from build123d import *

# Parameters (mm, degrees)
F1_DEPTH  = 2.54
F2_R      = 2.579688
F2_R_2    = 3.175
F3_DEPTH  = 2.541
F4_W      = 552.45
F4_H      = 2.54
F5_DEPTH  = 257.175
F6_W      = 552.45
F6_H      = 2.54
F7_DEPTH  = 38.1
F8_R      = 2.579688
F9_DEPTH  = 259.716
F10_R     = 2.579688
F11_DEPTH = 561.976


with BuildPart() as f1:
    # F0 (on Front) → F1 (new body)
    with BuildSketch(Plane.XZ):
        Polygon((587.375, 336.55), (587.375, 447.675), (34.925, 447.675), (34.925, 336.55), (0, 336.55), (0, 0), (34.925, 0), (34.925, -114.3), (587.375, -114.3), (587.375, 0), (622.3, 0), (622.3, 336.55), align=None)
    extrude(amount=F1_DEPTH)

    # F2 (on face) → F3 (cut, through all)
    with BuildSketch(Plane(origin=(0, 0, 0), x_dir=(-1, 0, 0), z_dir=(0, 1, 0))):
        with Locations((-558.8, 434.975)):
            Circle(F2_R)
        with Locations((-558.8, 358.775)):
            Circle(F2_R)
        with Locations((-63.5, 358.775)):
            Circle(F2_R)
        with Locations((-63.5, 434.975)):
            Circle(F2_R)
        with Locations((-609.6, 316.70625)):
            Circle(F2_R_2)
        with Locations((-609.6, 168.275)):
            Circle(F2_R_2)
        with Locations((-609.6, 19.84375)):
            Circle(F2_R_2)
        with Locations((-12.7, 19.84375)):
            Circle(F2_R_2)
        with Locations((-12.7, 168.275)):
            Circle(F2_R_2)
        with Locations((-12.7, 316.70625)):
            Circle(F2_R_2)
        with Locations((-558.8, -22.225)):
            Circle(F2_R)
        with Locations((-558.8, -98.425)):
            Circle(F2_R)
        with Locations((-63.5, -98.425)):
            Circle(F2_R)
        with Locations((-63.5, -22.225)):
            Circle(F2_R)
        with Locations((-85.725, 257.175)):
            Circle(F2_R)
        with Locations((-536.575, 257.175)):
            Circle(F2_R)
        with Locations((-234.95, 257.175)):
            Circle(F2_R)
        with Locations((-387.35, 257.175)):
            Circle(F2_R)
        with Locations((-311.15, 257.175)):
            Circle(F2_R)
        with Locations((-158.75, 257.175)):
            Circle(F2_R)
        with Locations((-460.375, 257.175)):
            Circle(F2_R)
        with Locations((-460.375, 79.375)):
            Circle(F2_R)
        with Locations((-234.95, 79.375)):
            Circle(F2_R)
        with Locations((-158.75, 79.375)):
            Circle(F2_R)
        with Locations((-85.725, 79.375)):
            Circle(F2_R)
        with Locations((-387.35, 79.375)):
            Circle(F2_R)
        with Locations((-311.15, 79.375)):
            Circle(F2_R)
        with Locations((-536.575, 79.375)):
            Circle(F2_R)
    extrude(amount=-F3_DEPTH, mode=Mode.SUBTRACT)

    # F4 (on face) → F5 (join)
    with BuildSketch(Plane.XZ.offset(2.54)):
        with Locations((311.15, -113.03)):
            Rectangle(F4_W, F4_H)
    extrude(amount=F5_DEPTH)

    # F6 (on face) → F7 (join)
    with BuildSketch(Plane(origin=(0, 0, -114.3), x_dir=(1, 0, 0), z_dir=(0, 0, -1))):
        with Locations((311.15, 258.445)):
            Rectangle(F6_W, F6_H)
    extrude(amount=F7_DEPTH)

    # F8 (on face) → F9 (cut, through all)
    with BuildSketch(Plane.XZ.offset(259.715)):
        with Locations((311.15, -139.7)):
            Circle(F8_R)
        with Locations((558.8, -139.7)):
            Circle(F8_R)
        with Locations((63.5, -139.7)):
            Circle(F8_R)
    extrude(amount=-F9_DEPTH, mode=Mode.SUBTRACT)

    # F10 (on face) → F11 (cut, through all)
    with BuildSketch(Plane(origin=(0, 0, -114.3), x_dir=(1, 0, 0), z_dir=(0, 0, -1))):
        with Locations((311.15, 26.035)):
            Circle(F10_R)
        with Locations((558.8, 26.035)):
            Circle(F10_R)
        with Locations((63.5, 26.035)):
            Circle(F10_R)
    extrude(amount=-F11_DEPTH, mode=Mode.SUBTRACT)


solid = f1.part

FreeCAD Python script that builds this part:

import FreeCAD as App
import Part
import Sketcher
from FreeCAD import Vector
Q = App.Units.Quantity


def add_polygon(sketch, points):
    """Adds a closed chain of lines whose ends are joined by coincident constraints."""
    first, n = sketch.GeometryCount, len(points)
    for a, b in zip(points, points[1:] + points[:1]):
        sketch.addGeometry(Part.LineSegment(App.Vector(*a, 0), App.Vector(*b, 0)), False)
    for i in range(n):
        sketch.addConstraint(Sketcher.Constraint("Coincident", first + i, 2, first + (i + 1) % n, 1))

doc = App.newDocument("Part")
body = doc.addObject("PartDesign::Body", "Body")

# Sketch on XZ plane
sketch1 = doc.addObject("Sketcher::SketchObject", "Sketch")
body.addObject(sketch1)
sketch1.AttachmentSupport = (doc.XZ_Plane, [""])
sketch1.MapMode = "FlatFace"
add_polygon(sketch1, [(587, 337), (587, 448), (35, 448), (35, 337), (0, 337), (0, 0), (35, 0), (35, -114), (587, -114), (587, 0), (622, 0), (622, 337)])  # lines 0-11
sketch1.addConstraint([
    Sketcher.Constraint("Vertical", 0),
    Sketcher.Constraint("Horizontal", 1),
    Sketcher.Constraint("Vertical", 2),
    Sketcher.Constraint("Horizontal", 3),
    Sketcher.Constraint("Vertical", 4),
    Sketcher.Constraint("Horizontal", 5),
    Sketcher.Constraint("Vertical", 6),
    Sketcher.Constraint("Horizontal", 7),
    Sketcher.Constraint("Vertical", 8),
    Sketcher.Constraint("Horizontal", 9),
    Sketcher.Constraint("Vertical", 10),
    Sketcher.Constraint("Horizontal", 11),
    Sketcher.Constraint("Coincident", 4, 2, -1, 1),
    Sketcher.Constraint("PointOnObject", 8, 2, -1),
    Sketcher.Constraint("Horizontal", 3, 2, 10, 2),
    Sketcher.Constraint("Vertical", 2, 2, 5, 2),
    Sketcher.Constraint("Vertical", 0, 2, 7, 2),
    Sketcher.Constraint("Equal", 5, 9),
    Sketcher.Constraint("DistanceY", 6, 2, 6, 1, Q("4.5 in")),
    Sketcher.Constraint("DistanceX", 1, 2, 1, 1, Q("21.75 in")),
    Sketcher.Constraint("DistanceY", 4, 2, 4, 1, Q("13.25 in")),
    Sketcher.Constraint("DistanceX", -1, 1, 9, 2, Q("24.5 in")),
    Sketcher.Constraint("DistanceY", 0, 1, 0, 2, Q("4.375 in")),
])
pad1 = doc.addObject("PartDesign::Pad", "Pad")
body.addObject(pad1)
pad1.Profile = sketch1
pad1.Length = Q("0.1 in")

# Sketch on XZ plane
sketch2 = doc.addObject("Sketcher::SketchObject", "Sketch001")
body.addObject(sketch2)
sketch2.AttachmentSupport = (doc.XZ_Plane, [""])
sketch2.MapMode = "FlatFace"
sketch2.addGeometry([
    Part.Circle(Vector(558.8, 435, 0), Vector(0, 0, 1), 2.6),  # 0
    Part.Circle(Vector(558.8, 358.8, 0), Vector(0, 0, 1), 2.6),  # 1
    Part.Circle(Vector(63.5, 358.8, 0), Vector(0, 0, 1), 2.6),  # 2
    Part.Circle(Vector(63.5, 435, 0), Vector(0, 0, 1), 2.6),  # 3
    Part.Circle(Vector(609.6, 316.7, 0), Vector(0, 0, 1), 3.2),  # 4
    Part.Circle(Vector(609.6, 168.3, 0), Vector(0, 0, 1), 3.2),  # 5
    Part.Circle(Vector(609.6, 19.8, 0), Vector(0, 0, 1), 3.2),  # 6
    Part.Circle(Vector(12.7, 19.8, 0), Vector(0, 0, 1), 3.2),  # 7
    Part.Circle(Vector(12.7, 168.3, 0), Vector(0, 0, 1), 3.2),  # 8
    Part.Circle(Vector(12.7, 316.7, 0), Vector(0, 0, 1), 3.2),  # 9
    Part.Circle(Vector(558.8, -22.2, 0), Vector(0, 0, 1), 2.6),  # 10
    Part.Circle(Vector(558.8, -98.4, 0), Vector(0, 0, 1), 2.6),  # 11
    Part.Circle(Vector(63.5, -98.4, 0), Vector(0, 0, 1), 2.6),  # 12
    Part.Circle(Vector(63.5, -22.2, 0), Vector(0, 0, 1), 2.6),  # 13
    Part.Circle(Vector(85.7, 257.2, 0), Vector(0, 0, 1), 2.6),  # 14
    Part.Circle(Vector(536.6, 257.2, 0), Vector(0, 0, 1), 2.6),  # 15
    Part.Circle(Vector(234.9, 257.2, 0), Vector(0, 0, 1), 2.6),  # 16
    Part.Circle(Vector(387.4, 257.2, 0), Vector(0, 0, 1), 2.6),  # 17
    Part.Circle(Vector(311.1, 257.2, 0), Vector(0, 0, 1), 2.6),  # 18
    Part.Circle(Vector(158.8, 257.2, 0), Vector(0, 0, 1), 2.6),  # 19
    Part.Circle(Vector(460.4, 257.2, 0), Vector(0, 0, 1), 2.6),  # 20
    Part.Circle(Vector(460.4, 79.4, 0), Vector(0, 0, 1), 2.6),  # 21
    Part.Circle(Vector(234.9, 79.4, 0), Vector(0, 0, 1), 2.6),  # 22
    Part.Circle(Vector(158.8, 79.4, 0), Vector(0, 0, 1), 2.6),  # 23
    Part.Circle(Vector(85.7, 79.4, 0), Vector(0, 0, 1), 2.6),  # 24
    Part.Circle(Vector(387.4, 79.4, 0), Vector(0, 0, 1), 2.6),  # 25
    Part.Circle(Vector(311.1, 79.4, 0), Vector(0, 0, 1), 2.6),  # 26
    Part.Circle(Vector(536.6, 79.4, 0), Vector(0, 0, 1), 2.6),  # 27
], False)
sketch2.addConstraint([
    Sketcher.Constraint("Equal", 0, 1),
    Sketcher.Constraint("Equal", 1, 2),
    Sketcher.Constraint("Equal", 2, 3),
    Sketcher.Constraint("Equal", 4, 5),
    Sketcher.Constraint("Equal", 5, 6),
    Sketcher.Constraint("Equal", 6, 7),
    Sketcher.Constraint("Equal", 7, 8),
    Sketcher.Constraint("Equal", 8, 9),
    Sketcher.Constraint("Equal", 3, 10),
    Sketcher.Constraint("Equal", 10, 11),
    Sketcher.Constraint("Equal", 11, 12),
    Sketcher.Constraint("Equal", 12, 13),
    Sketcher.Constraint("Equal", 13, 14),
    Sketcher.Constraint("Equal", 14, 15),
    Sketcher.Constraint("Equal", 15, 16),
    Sketcher.Constraint("Equal", 16, 17),
    Sketcher.Constraint("Equal", 17, 18),
    Sketcher.Constraint("Equal", 18, 19),
    Sketcher.Constraint("Equal", 19, 20),
    Sketcher.Constraint("Equal", 20, 21),
    Sketcher.Constraint("Equal", 21, 22),
    Sketcher.Constraint("Equal", 22, 23),
    Sketcher.Constraint("Equal", 23, 24),
    Sketcher.Constraint("Equal", 24, 25),
    Sketcher.Constraint("Equal", 25, 26),
    Sketcher.Constraint("Equal", 26, 27),
    Sketcher.Constraint("Horizontal", 1, 3, 2, 3),
    Sketcher.Constraint("Horizontal", 0, 3, 3, 3),
    Sketcher.Constraint("Horizontal", 6, 3, 7, 3),
    Sketcher.Constraint("Horizontal", 5, 3, 8, 3),
    Sketcher.Constraint("Horizontal", 4, 3, 9, 3),
    Sketcher.Constraint("Horizontal", 11, 3, 12, 3),
    Sketcher.Constraint("Horizontal", 10, 3, 13, 3),
    Sketcher.Constraint("Horizontal", 14, 3, 15, 3),
    Sketcher.Constraint("Horizontal", 15, 3, 16, 3),
    Sketcher.Constraint("Horizontal", 16, 3, 17, 3),
    Sketcher.Constraint("Horizontal", 17, 3, 18, 3),
    Sketcher.Constraint("Horizontal", 18, 3, 19, 3),
    Sketcher.Constraint("Horizontal", 19, 3, 20, 3),
    Sketcher.Constraint("Horizontal", 21, 3, 22, 3),
    Sketcher.Constraint("Horizontal", 22, 3, 23, 3),
    Sketcher.Constraint("Horizontal", 23, 3, 24, 3),
    Sketcher.Constraint("Horizontal", 24, 3, 25, 3),
    Sketcher.Constraint("Horizontal", 25, 3, 26, 3),
    Sketcher.Constraint("Horizontal", 26, 3, 27, 3),
    Sketcher.Constraint("Vertical", 0, 3, 1, 3),
    Sketcher.Constraint("Vertical", 2, 3, 3, 3),
    Sketcher.Constraint("Vertical", 4, 3, 5, 3),
    Sketcher.Constraint("Vertical", 5, 3, 6, 3),
    Sketcher.Constraint("Vertical", 7, 3, 8, 3),
    Sketcher.Constraint("Vertical", 8, 3, 9, 3),
    Sketcher.Constraint("Vertical", 1, 3, 10, 3),
    Sketcher.Constraint("Vertical", 10, 3, 11, 3),
    Sketcher.Constraint("Vertical", 3, 3, 12, 3),
    Sketcher.Constraint("Vertical", 12, 3, 13, 3),
    Sketcher.Constraint("Vertical", 20, 3, 21, 3),
    Sketcher.Constraint("Vertical", 16, 3, 22, 3),
    Sketcher.Constraint("Vertical", 19, 3, 23, 3),
    Sketcher.Constraint("Vertical", 14, 3, 24, 3),
    Sketcher.Constraint("Vertical", 17, 3, 25, 3),
    Sketcher.Constraint("Vertical", 18, 3, 26, 3),
    Sketcher.Constraint("Vertical", 15, 3, 27, 3),
    Sketcher.Constraint("Diameter", 4, Q("0.25 in")),
    Sketcher.Constraint("Diameter", 0, Q("0.203125 in")),
    Sketcher.Constraint("DistanceX", -1, 1, 0, 3, Q("22 in")),
    Sketcher.Constraint("DistanceX", -1, 1, 4, 3, Q("24 in")),
    Sketcher.Constraint("DistanceY", 1, 3, 0, 3, Q("3 in")),
    Sketcher.Constraint("DistanceX", 7, 3, 2, 3, Q("2 in")),
    Sketcher.Constraint("DistanceY", 10, 3, 1, 3, Q("15 in")),
    Sketcher.Constraint("DistanceY", 11, 3, 10, 3, Q("3 in")),
    Sketcher.Constraint("DistanceY", 14, 3, 2, 3, Q("4 in")),
    Sketcher.Constraint("DistanceX", 16, 3, 17, 3, Q("6 in")),
    Sketcher.Constraint("DistanceX", 16, 3, 18, 3, Q("3 in")),
    Sketcher.Constraint("DistanceX", 19, 3, 16, 3, Q("3 in")),
    Sketcher.Constraint("DistanceX", 20, 3, 15, 3, Q("3 in")),
    Sketcher.Constraint("DistanceY", 10, 3, 21, 3, Q("4 in")),
    Sketcher.Constraint("DistanceX", -1, 1, 2, 3, Q("2.5 in")),
    Sketcher.Constraint("DistanceY", 5, 3, 1, 3, Q("7.5 in")),
    Sketcher.Constraint("DistanceX", -1, 1, 16, 3, Q("9.25 in")),
    Sketcher.Constraint("DistanceY", -1, 1, 0, 3, Q("17.125 in")),
    Sketcher.Constraint("DistanceY", -1, 1, 4, 3, Q("12.46875 in")),
    Sketcher.Constraint("DistanceY", -1, 1, 6, 3, Q("0.78125 in")),
    Sketcher.Constraint("DistanceX", -1, 1, 14, 3, Q("3.375 in")),
    Sketcher.Constraint("DistanceX", -1, 1, 15, 3, Q("21.125 in")),
])
pocket1 = doc.addObject("PartDesign::Pocket", "Pocket")
body.addObject(pocket1)
pocket1.Profile = sketch2
pocket1.Type = "ThroughAll"
pocket1.Reversed = True

# Sketch on XZ plane
sketch3 = doc.addObject("Sketcher::SketchObject", "Sketch002")
body.addObject(sketch3)
sketch3.AttachmentSupport = (doc.XZ_Plane, [""])
sketch3.MapMode = "FlatFace"
sketch3.AttachmentOffset = App.Placement(Vector(0, 0, 0.1 * 25.4), App.Rotation())
add_polygon(sketch3, [(34.9, -111.8), (34.9, -114.3), (587.4, -114.3), (587.4, -111.8)])  # lines 0-3
sketch3.addConstraint([
    Sketcher.Constraint("Vertical", 0),
    Sketcher.Constraint("Horizontal", 1),
    Sketcher.Constraint("Vertical", 2),
    Sketcher.Constraint("Horizontal", 3),
    Sketcher.Constraint("DistanceY", 0, 2, 0, 1, Q("0.1 in")),
    Sketcher.Constraint("DistanceX", 1, 1, 1, 2, Q("21.75 in")),
    Sketcher.Constraint("DistanceY", 0, 2, -1, 1, Q("4.5 in")),
    Sketcher.Constraint("DistanceX", -1, 1, 0, 2, Q("1.375 in")),
])
pad2 = doc.addObject("PartDesign::Pad", "Pad001")
body.addObject(pad2)
pad2.Profile = sketch3
pad2.Length = Q("10.125 in")

# Sketch on XY plane
sketch4 = doc.addObject("Sketcher::SketchObject", "Sketch003")
body.addObject(sketch4)
sketch4.AttachmentSupport = (doc.XY_Plane, [""])
sketch4.MapMode = "FlatFace"
sketch4.AttachmentOffset = App.Placement(Vector(0, 0, -4.5 * 25.4), App.Rotation())
add_polygon(sketch4, [(34.9, -259.7), (34.9, -257.2), (587.4, -257.2), (587.4, -259.7)])  # lines 0-3
sketch4.addConstraint([
    Sketcher.Constraint("Vertical", 0),
    Sketcher.Constraint("Horizontal", 1),
    Sketcher.Constraint("Vertical", 2),
    Sketcher.Constraint("Horizontal", 3),
    Sketcher.Constraint("DistanceY", 0, 1, 0, 2, Q("0.1 in")),
    Sketcher.Constraint("DistanceX", 1, 1, 1, 2, Q("21.75 in")),
    Sketcher.Constraint("DistanceX", -1, 1, 0, 2, Q("1.375 in")),
    Sketcher.Constraint("DistanceY", 0, 2, -1, 1, Q("10.125 in")),
])
pad3 = doc.addObject("PartDesign::Pad", "Pad002")
body.addObject(pad3)
pad3.Profile = sketch4
pad3.Length = Q("1.5 in")
pad3.Reversed = True

# Sketch on XZ plane
sketch5 = doc.addObject("Sketcher::SketchObject", "Sketch004")
body.addObject(sketch5)
sketch5.AttachmentSupport = (doc.XZ_Plane, [""])
sketch5.MapMode = "FlatFace"
sketch5.AttachmentOffset = App.Placement(Vector(0, 0, 10.225 * 25.4), App.Rotation())
sketch5.addGeometry([
    Part.Circle(Vector(311.1, -139.7, 0), Vector(0, 0, 1), 2.6),
    Part.Circle(Vector(558.8, -139.7, 0), Vector(0, 0, 1), 2.6),
    Part.Circle(Vector(63.5, -139.7, 0), Vector(0, 0, 1), 2.6),
], False)
sketch5.addConstraint([
    Sketcher.Constraint("Equal", 0, 1),
    Sketcher.Constraint("Equal", 1, 2),
    Sketcher.Constraint("Horizontal", 0, 3, 1, 3),
    Sketcher.Constraint("Horizontal", 1, 3, 2, 3),
    Sketcher.Constraint("Diameter", 0, Q("0.203125 in")),
    Sketcher.Constraint("DistanceX", -1, 1, 1, 3, Q("22 in")),
    Sketcher.Constraint("DistanceY", 0, 3, -1, 1, Q("5.5 in")),
    Sketcher.Constraint("DistanceX", -1, 1, 2, 3, Q("2.5 in")),
    Sketcher.Constraint("DistanceX", -1, 1, 0, 3, Q("12.25 in")),
])
pocket2 = doc.addObject("PartDesign::Pocket", "Pocket001")
body.addObject(pocket2)
pocket2.Profile = sketch5
pocket2.Type = "ThroughAll"

# Sketch on XY plane
sketch6 = doc.addObject("Sketcher::SketchObject", "Sketch005")
body.addObject(sketch6)
sketch6.AttachmentSupport = (doc.XY_Plane, [""])
sketch6.MapMode = "FlatFace"
sketch6.AttachmentOffset = App.Placement(Vector(0, 0, -4.5 * 25.4), App.Rotation())
sketch6.addGeometry([
    Part.Circle(Vector(311.1, -26, 0), Vector(0, 0, 1), 2.6),
    Part.Circle(Vector(558.8, -26, 0), Vector(0, 0, 1), 2.6),
    Part.Circle(Vector(63.5, -26, 0), Vector(0, 0, 1), 2.6),
], False)
sketch6.addConstraint([
    Sketcher.Constraint("Equal", 0, 1),
    Sketcher.Constraint("Equal", 1, 2),
    Sketcher.Constraint("Horizontal", 0, 3, 1, 3),
    Sketcher.Constraint("Horizontal", 1, 3, 2, 3),
    Sketcher.Constraint("Diameter", 0, Q("0.203125 in")),
    Sketcher.Constraint("DistanceX", -1, 1, 1, 3, Q("22 in")),
    Sketcher.Constraint("DistanceX", -1, 1, 2, 3, Q("2.5 in")),
    Sketcher.Constraint("DistanceX", -1, 1, 0, 3, Q("12.25 in")),
    Sketcher.Constraint("DistanceY", 0, 3, -1, 1, Q("1.025 in")),
])
pocket3 = doc.addObject("PartDesign::Pocket", "Pocket002")
body.addObject(pocket3)
pocket3.Profile = sketch6
pocket3.Type = "ThroughAll"
pocket3.Reversed = True

doc.recompute()
